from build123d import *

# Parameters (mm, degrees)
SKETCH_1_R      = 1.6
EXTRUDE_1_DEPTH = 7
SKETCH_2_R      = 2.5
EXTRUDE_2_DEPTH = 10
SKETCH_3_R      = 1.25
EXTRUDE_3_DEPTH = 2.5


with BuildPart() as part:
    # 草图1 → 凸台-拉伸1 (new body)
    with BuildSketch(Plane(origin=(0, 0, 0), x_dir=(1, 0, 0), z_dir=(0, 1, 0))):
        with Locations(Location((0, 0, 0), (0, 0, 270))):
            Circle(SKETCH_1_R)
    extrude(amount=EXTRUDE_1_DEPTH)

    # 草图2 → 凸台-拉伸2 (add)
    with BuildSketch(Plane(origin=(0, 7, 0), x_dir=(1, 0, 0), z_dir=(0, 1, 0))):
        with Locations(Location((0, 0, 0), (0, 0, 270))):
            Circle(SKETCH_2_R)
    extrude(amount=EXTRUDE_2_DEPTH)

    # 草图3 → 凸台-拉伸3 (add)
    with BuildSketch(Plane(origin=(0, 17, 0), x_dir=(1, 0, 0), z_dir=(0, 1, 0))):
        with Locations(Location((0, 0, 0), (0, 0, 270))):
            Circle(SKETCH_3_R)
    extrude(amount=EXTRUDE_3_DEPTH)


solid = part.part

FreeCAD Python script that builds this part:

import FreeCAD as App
import Part
import Sketcher

V = App.Vector

doc = App.newDocument("Part")
body = doc.addObject("PartDesign::Body", "Body")

sketch1 = body.newObject("Sketcher::SketchObject", "Sketch")
sketch1.AttachmentSupport = (doc.getObject("XZ_Plane"), [""])
sketch1.MapMode = "FlatFace"
sketch1.addGeometry(Part.Circle(V(0, 0, 0), V(0, 0, 1), 1.6), False)
sketch1.addConstraint([
    Sketcher.Constraint("Coincident", 0, 3, -1, 1),
    Sketcher.Constraint("Diameter", 0, 3.2),
])
pad1 = body.newObject("PartDesign::Pad", "Pad")
pad1.Profile = sketch1
pad1.Length = 7
pad1.Reversed = True

sketch2 = body.newObject("Sketcher::SketchObject", "Sketch001")
sketch2.AttachmentSupport = (doc.getObject("XZ_Plane"), [""])
sketch2.MapMode = "FlatFace"
sketch2.AttachmentOffset = App.Placement(V(0, 0, -7), App.Rotation())
sketch2.addGeometry(Part.Circle(V(0, 0, 0), V(0, 0, 1), 2.5), False)
sketch2.addConstraint([
    Sketcher.Constraint("Coincident", 0, 3, -1, 1),
    Sketcher.Constraint("Diameter", 0, 5.0),
])
pad2 = body.newObject("PartDesign::Pad", "Pad001")
pad2.Profile = sketch2
pad2.Length = 10
pad2.Reversed = True

sketch3 = body.newObject("Sketcher::SketchObject", "Sketch002")
sketch3.AttachmentSupport = (doc.getObject("XZ_Plane"), [""])
sketch3.MapMode = "FlatFace"
sketch3.AttachmentOffset = App.Placement(V(0, 0, -17), App.Rotation())
sketch3.addGeometry(Part.Circle(V(0, 0, 0), V(0, 0, 1), 1.25), False)
sketch3.addConstraint([
    Sketcher.Constraint("Coincident", 0, 3, -1, 1),
    Sketcher.Constraint("Diameter", 0, 2.5),
])
pad3 = body.newObject("PartDesign::Pad", "Pad002")
pad3.Profile = sketch3
pad3.Length = 2.5
pad3.Reversed = True

doc.recompute()
